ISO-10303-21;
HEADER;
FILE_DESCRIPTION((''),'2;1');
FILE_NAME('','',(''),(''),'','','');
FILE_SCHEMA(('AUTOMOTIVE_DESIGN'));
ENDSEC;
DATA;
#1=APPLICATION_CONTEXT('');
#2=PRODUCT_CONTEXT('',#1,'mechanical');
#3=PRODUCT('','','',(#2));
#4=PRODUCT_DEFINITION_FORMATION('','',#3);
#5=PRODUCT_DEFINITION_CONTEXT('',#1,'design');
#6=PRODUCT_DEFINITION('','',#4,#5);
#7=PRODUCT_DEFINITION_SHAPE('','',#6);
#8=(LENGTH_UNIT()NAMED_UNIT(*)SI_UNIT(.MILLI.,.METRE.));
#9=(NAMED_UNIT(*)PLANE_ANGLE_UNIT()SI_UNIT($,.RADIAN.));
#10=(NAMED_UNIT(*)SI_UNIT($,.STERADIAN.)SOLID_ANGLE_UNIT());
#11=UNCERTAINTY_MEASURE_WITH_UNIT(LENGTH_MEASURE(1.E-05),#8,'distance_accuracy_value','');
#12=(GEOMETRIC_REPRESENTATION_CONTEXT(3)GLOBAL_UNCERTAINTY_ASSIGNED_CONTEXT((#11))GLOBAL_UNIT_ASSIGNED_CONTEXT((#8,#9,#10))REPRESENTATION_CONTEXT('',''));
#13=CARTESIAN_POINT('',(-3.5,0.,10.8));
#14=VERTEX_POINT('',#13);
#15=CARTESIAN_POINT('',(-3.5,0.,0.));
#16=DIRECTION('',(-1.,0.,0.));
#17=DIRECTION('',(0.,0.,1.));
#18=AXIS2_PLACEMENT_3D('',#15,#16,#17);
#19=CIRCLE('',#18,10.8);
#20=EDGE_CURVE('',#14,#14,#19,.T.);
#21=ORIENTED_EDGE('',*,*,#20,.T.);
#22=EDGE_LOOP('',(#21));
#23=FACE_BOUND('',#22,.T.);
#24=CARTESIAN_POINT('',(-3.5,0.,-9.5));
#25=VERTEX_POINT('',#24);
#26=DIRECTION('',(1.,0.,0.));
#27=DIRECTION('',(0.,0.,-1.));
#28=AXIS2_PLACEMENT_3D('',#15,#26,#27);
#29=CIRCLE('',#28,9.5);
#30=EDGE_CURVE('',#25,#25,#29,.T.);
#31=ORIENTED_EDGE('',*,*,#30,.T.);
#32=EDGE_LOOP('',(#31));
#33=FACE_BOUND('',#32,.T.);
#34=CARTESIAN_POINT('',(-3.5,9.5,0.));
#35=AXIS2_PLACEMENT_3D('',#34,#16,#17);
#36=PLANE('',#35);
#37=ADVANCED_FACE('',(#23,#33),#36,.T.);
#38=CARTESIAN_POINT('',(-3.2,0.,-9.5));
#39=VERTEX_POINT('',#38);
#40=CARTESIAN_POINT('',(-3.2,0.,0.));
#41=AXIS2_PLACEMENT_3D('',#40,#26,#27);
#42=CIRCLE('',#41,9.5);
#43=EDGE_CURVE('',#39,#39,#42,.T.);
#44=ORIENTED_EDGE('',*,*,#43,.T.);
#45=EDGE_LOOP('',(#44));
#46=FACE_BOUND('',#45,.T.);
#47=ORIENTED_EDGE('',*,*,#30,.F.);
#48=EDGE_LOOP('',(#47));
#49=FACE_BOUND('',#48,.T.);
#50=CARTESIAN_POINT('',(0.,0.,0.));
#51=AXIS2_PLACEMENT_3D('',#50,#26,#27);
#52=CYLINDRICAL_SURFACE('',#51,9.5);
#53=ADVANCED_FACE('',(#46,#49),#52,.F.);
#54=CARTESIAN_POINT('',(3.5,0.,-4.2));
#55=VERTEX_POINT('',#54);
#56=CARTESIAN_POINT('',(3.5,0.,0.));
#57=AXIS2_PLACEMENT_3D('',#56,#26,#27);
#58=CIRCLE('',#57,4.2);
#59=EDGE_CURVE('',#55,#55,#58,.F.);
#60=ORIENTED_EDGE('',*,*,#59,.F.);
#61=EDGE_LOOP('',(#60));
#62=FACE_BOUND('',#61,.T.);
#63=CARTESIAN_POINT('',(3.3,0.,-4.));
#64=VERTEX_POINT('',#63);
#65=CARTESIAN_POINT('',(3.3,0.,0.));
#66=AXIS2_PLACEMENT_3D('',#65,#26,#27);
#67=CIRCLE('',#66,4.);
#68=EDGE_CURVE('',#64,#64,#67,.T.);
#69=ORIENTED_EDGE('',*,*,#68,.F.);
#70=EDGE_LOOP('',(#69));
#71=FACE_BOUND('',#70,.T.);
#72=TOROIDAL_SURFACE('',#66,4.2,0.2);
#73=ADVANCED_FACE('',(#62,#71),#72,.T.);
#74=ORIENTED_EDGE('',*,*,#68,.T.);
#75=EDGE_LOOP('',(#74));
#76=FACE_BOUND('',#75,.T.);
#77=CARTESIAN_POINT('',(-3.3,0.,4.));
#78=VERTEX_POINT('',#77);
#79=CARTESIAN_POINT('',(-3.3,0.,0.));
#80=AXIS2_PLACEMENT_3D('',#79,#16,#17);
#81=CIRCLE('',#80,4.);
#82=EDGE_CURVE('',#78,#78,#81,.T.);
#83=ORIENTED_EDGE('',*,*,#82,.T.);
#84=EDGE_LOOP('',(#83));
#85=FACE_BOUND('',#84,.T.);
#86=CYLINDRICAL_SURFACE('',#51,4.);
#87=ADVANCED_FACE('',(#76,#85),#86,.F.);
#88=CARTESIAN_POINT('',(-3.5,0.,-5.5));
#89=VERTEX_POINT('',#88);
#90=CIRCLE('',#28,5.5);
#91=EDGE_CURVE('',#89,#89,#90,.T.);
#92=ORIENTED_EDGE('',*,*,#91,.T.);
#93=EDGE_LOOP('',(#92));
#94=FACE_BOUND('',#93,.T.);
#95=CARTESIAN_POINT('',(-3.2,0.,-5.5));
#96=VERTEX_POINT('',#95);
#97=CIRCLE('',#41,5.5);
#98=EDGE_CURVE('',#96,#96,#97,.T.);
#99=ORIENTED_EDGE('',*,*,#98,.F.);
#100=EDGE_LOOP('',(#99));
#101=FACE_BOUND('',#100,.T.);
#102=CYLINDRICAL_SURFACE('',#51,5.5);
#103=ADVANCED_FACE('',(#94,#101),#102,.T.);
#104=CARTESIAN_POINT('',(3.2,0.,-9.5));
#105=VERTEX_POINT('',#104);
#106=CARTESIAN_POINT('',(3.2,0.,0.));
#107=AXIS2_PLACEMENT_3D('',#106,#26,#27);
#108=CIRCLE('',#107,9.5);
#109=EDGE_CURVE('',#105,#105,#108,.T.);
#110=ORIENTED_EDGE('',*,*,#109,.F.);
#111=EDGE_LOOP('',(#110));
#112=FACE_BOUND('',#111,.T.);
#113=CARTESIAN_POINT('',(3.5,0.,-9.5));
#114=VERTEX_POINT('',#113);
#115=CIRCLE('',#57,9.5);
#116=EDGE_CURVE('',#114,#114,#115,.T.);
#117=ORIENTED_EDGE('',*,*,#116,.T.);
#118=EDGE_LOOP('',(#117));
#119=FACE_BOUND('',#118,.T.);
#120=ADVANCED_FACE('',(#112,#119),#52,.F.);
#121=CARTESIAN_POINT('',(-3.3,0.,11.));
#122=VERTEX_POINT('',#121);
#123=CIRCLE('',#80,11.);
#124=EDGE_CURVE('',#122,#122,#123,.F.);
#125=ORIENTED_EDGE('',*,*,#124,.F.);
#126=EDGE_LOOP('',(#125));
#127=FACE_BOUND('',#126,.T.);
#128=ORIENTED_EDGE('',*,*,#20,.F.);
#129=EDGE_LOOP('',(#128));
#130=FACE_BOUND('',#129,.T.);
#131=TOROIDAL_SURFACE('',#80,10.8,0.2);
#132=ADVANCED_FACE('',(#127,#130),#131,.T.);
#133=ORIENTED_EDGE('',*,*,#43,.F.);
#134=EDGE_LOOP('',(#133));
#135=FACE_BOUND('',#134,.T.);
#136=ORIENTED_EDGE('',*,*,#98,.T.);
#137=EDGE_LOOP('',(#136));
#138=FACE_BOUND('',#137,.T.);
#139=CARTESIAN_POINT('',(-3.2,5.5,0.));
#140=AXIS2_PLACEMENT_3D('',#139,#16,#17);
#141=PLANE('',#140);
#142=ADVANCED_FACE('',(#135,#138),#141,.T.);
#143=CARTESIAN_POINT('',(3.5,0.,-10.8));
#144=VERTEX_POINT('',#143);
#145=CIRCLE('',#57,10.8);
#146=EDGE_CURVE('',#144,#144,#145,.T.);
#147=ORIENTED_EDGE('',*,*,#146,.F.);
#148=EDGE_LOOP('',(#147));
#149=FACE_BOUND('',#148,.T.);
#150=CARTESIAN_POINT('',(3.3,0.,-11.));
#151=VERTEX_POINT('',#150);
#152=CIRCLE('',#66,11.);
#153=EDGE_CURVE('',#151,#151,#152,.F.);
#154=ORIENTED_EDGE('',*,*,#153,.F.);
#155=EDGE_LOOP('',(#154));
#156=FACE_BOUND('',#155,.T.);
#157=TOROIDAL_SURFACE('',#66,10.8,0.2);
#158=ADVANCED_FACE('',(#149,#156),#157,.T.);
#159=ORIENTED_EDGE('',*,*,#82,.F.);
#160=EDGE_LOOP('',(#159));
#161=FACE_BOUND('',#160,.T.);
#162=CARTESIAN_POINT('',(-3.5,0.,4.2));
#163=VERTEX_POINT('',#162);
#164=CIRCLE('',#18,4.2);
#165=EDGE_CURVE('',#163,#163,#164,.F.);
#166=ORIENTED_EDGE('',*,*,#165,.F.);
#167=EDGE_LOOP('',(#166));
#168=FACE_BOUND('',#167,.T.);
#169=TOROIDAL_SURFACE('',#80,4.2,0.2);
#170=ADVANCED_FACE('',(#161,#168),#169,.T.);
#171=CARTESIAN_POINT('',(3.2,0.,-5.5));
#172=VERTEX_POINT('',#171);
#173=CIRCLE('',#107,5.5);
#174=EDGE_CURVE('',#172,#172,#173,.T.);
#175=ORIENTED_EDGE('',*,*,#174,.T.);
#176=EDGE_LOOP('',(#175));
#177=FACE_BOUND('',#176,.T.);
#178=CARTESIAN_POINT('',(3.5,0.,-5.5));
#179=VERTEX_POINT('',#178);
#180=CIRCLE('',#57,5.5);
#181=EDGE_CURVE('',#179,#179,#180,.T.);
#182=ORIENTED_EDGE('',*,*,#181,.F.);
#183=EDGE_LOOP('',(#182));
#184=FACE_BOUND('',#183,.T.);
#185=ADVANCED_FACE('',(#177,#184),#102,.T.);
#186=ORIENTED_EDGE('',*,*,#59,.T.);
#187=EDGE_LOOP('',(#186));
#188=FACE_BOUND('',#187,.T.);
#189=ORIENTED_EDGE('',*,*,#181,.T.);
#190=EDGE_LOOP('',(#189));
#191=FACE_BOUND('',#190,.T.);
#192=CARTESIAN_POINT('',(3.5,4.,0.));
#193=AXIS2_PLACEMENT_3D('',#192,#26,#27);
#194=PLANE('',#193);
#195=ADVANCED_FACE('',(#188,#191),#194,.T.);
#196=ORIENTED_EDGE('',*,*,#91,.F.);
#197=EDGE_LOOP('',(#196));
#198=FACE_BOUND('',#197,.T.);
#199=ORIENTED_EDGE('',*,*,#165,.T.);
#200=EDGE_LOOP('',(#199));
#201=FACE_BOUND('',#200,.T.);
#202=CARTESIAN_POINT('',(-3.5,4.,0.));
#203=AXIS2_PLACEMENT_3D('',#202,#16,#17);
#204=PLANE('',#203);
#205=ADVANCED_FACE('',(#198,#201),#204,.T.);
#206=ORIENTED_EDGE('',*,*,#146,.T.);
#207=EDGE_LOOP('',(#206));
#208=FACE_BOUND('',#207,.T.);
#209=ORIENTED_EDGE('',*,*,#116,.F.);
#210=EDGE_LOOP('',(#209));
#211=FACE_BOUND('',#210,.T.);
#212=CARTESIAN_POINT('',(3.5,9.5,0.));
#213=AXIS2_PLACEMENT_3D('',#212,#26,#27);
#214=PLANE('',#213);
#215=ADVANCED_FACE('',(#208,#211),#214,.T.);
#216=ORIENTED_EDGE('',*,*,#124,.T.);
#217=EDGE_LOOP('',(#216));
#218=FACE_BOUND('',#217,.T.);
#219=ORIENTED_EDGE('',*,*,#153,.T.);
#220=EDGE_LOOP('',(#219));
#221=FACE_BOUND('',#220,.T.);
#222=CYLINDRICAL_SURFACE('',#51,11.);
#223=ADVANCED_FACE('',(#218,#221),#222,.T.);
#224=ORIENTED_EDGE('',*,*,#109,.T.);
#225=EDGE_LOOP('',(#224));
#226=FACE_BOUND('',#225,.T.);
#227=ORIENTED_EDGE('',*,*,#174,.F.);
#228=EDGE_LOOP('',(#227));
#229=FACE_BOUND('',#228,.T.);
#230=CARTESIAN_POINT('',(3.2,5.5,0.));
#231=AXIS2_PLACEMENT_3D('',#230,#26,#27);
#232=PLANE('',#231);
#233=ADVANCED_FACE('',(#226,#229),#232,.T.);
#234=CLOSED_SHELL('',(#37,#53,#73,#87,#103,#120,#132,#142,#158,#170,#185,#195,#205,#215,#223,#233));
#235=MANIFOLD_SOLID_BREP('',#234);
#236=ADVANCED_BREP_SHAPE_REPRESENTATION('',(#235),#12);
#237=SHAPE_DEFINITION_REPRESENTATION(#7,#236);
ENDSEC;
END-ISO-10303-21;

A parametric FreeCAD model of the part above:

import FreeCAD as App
import Part
import Sketcher
from FreeCAD import Vector


def edges_at(feature, points):
    """Names of the edges that pass closest to the given points."""
    edges = feature.Shape.Edges
    near = lambda p: min(range(len(edges)), key=lambda i: edges[i].distToShape(Part.Vertex(*p))[0])
    return sorted({f"Edge{near(p) + 1}" for p in points})


def add_polygon(sketch, points):
    """Adds a closed chain of lines whose ends are joined by coincident constraints."""
    first, n = sketch.GeometryCount, len(points)
    for a, b in zip(points, points[1:] + points[:1]):
        sketch.addGeometry(Part.LineSegment(App.Vector(*a, 0), App.Vector(*b, 0)), False)
    for i in range(n):
        sketch.addConstraint(Sketcher.Constraint("Coincident", first + i, 2, first + (i + 1) % n, 1))

doc = App.newDocument("Part")
params = doc.addObject("Spreadsheet::Sheet", "Params")
for row, (alias, value) in enumerate([
    ("sketch1_width", "7 mm"),
    ("sketch1_height", "4 mm"),
    ("sketch1_width2", "0.3 mm"),
    ("sketch1_height2", "1.5 mm"),
    ("revolution_angle", "360 deg"),
    ("fillet_radius", "0.2 mm"),
], start=1):
    params.set(f"A{row}", alias)
    params.set(f"B{row}", "=" + value)
    params.setAlias(f"B{row}", alias)

body = doc.addObject("PartDesign::Body", "Body")

# Sketch on XY plane
sketch1 = body.newObject("Sketcher::SketchObject", "Sketch")
sketch1.AttachmentSupport = (doc.getObject("XY_Plane"), [""])
sketch1.MapMode = "FlatFace"
add_polygon(sketch1, [(-3.5, 4), (3.5, 4), (3.5, 5.5), (3.2, 5.5), (3.2, 9.5), (3.5, 9.5), (3.5, 11), (-3.5, 11), (-3.5, 9.5), (-3.2, 9.5), (-3.2, 5.5), (-3.5, 5.5)])  # lines 0-11
sketch1.addConstraint(Sketcher.Constraint("Horizontal", 0))
sketch1.addConstraint(Sketcher.Constraint("Vertical", 1))
sketch1.addConstraint(Sketcher.Constraint("Horizontal", 2))
sketch1.addConstraint(Sketcher.Constraint("Vertical", 3))
sketch1.addConstraint(Sketcher.Constraint("Horizontal", 4))
sketch1.addConstraint(Sketcher.Constraint("Vertical", 5))
sketch1.addConstraint(Sketcher.Constraint("Horizontal", 6))
sketch1.addConstraint(Sketcher.Constraint("Vertical", 7))
sketch1.addConstraint(Sketcher.Constraint("Horizontal", 8))
sketch1.addConstraint(Sketcher.Constraint("Vertical", 9))
sketch1.addConstraint(Sketcher.Constraint("Horizontal", 10))
sketch1.addConstraint(Sketcher.Constraint("Vertical", 11))
sketch1.addConstraint(Sketcher.Constraint("Symmetric", 4, 2, 7, 2, -2))
sketch1.addConstraint(Sketcher.Constraint("Symmetric", 2, 2, 9, 2, -2))
sketch1.addConstraint(Sketcher.Constraint("Vertical", 1, 2, 4, 2))
sketch1.addConstraint(Sketcher.Constraint("Vertical", 7, 2, 10, 2))
sketch1.addConstraint(Sketcher.Constraint("Equal", 1, 5))
sketch1.addConstraint(Sketcher.Constraint("DistanceX", 0, 1, 0, 2, 7.0))
sketch1.addConstraint(Sketcher.Constraint("DistanceY", 3, 1, 3, 2, 4.0))
sketch1.addConstraint(Sketcher.Constraint("DistanceX", 2, 2, 2, 1, 0.3))
sketch1.addConstraint(Sketcher.Constraint("DistanceY", 1, 1, 1, 2, 1.5))
sketch1.addConstraint(Sketcher.Constraint("DistanceY", -1, 1, 0, 2, 4.0))
sketch1.setExpression("Constraints[29]", "Params.sketch1_width")
sketch1.setExpression("Constraints[30]", "Params.sketch1_height")
sketch1.setExpression("Constraints[31]", "Params.sketch1_width2")
sketch1.setExpression("Constraints[32]", "Params.sketch1_height2")
revolution = body.newObject("PartDesign::Revolution", "Revolution")
revolution.Profile = sketch1
revolution.ReferenceAxis = (sketch1, ["H_Axis"])
revolution.setExpression("Angle", "Params.revolution_angle")
doc.recompute()

fillet = body.newObject("PartDesign::Fillet", "Fillet")
fillet.Base = (revolution, edges_at(revolution, [
    (3.5, 0, 11),
    (-3.5, 0, 11),
    (-3.5, 0, 4),
    (3.5, 0, 4),
]))
fillet.setExpression("Radius", "Params.fillet_radius")

doc.recompute()
